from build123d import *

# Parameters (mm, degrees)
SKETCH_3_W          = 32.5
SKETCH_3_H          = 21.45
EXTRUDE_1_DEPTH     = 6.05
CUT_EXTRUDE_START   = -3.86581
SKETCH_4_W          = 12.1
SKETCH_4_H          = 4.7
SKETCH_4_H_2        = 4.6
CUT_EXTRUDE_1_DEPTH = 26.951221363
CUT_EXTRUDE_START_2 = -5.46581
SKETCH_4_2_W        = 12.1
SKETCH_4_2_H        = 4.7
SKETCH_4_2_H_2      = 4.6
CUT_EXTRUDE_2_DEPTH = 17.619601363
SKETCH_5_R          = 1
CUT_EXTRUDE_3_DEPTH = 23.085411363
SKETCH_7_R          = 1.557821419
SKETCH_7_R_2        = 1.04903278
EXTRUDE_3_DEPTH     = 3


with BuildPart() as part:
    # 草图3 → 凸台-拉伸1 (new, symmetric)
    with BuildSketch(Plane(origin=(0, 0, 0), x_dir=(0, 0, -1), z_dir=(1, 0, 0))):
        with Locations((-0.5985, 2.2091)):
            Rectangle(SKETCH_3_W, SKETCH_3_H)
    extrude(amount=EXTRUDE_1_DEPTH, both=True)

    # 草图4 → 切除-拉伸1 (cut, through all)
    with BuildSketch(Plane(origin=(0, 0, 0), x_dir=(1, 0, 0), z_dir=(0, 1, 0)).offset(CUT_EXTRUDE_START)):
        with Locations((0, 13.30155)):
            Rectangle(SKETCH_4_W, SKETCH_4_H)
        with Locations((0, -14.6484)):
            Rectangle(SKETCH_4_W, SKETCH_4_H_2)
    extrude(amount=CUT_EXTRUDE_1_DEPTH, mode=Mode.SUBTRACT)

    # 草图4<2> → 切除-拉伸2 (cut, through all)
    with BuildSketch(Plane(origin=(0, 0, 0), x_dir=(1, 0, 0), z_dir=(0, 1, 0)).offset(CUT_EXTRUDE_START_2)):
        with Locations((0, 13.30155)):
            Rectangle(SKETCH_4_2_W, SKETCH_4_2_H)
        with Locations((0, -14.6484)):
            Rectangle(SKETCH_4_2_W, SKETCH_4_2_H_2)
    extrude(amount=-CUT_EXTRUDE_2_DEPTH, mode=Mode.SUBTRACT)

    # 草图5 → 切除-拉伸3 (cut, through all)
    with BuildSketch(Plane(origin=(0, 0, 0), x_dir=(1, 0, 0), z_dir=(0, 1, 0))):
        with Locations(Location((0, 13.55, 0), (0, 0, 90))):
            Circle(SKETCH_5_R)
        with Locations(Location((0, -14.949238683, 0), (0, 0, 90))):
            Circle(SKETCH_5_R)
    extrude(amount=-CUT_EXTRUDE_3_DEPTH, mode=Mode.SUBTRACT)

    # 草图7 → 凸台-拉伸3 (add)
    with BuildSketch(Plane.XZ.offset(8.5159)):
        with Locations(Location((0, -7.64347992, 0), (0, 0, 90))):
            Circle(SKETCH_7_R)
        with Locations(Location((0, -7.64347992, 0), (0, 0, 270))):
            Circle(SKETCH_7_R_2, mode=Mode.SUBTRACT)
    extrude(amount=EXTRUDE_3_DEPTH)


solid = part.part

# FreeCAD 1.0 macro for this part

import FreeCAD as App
import Part
import Sketcher
from FreeCAD import Vector
Q = App.Units.Quantity

doc = App.newDocument("Part")
params = doc.addObject("Spreadsheet::Sheet", "Params")
for row, (alias, value) in enumerate([
    ("sketch1_height", "32.5 mm"),
    ("sketch1_width", "21.45 mm"),
    ("pad1_length", "12.1 mm"),
    ("sketch2_width", "12.1 mm"),
    ("sketch2_height", "4.7 mm"),
    ("sketch2_height2", "4.6 mm"),
    ("sketch3_width", "12.1 mm"),
    ("sketch3_height", "4.7 mm"),
    ("sketch3_height2", "4.6 mm"),
    ("sketch4_diameter", "2 mm"),
    ("pad2_length", "3 mm"),
], start=1):
    params.set(f"A{row}", alias)
    params.set(f"B{row}", "=" + value)
    params.setAlias(f"B{row}", alias)

body = doc.addObject("PartDesign::Body", "Body")

# Sketch on YZ plane
sketch1 = body.newObject("Sketcher::SketchObject", "Sketch")
sketch1.AttachmentSupport = (doc.getObject("YZ_Plane"), [""])
sketch1.MapMode = "FlatFace"
sketch1.addGeometry(Part.LineSegment(Vector(12.9341, 16.8485, 0), Vector(-8.5159, 16.8485, 0)), False)
sketch1.addGeometry(Part.LineSegment(Vector(-8.5159, 16.8485, 0), Vector(-8.5159, -15.6515, 0)), False)
sketch1.addGeometry(Part.LineSegment(Vector(-8.5159, -15.6515, 0), Vector(12.9341, -15.6515, 0)), False)
sketch1.addGeometry(Part.LineSegment(Vector(12.9341, -15.6515, 0), Vector(12.9341, 16.8485, 0)), False)
sketch1.addConstraint(Sketcher.Constraint("Coincident", 0, 2, 1, 1))
sketch1.addConstraint(Sketcher.Constraint("Coincident", 1, 2, 2, 1))
sketch1.addConstraint(Sketcher.Constraint("Coincident", 2, 2, 3, 1))
sketch1.addConstraint(Sketcher.Constraint("Coincident", 3, 2, 0, 1))
sketch1.addConstraint(Sketcher.Constraint("Horizontal", 0))
sketch1.addConstraint(Sketcher.Constraint("Vertical", 1))
sketch1.addConstraint(Sketcher.Constraint("Horizontal", 2))
sketch1.addConstraint(Sketcher.Constraint("Vertical", 3))
sketch1.addConstraint(Sketcher.Constraint("DistanceY", 1, 2, 1, 1, Q("32.5 mm")))
sketch1.addConstraint(Sketcher.Constraint("DistanceX", 0, 2, 0, 1, Q("21.45 mm")))
sketch1.addConstraint(Sketcher.Constraint("DistanceX", 0, 2, -1, 1, Q("8.5159 mm")))
sketch1.addConstraint(Sketcher.Constraint("DistanceY", -1, 1, 0, 2, Q("16.8485 mm")))
sketch1.setExpression("Constraints[8]", "Params.sketch1_height")
sketch1.setExpression("Constraints[9]", "Params.sketch1_width")
pad1 = body.newObject("PartDesign::Pad", "Pad")
pad1.Profile = sketch1
pad1.setExpression("Length", "Params.pad1_length")
pad1.Midplane = True

# Sketch on XZ plane
sketch2 = body.newObject("Sketcher::SketchObject", "Sketch001")
sketch2.AttachmentSupport = (doc.getObject("XZ_Plane"), [""])
sketch2.MapMode = "FlatFace"
sketch2.AttachmentOffset = App.Placement(Vector(0, 0, 3.86581), App.Rotation())
sketch2.addGeometry(Part.LineSegment(Vector(-6.05, -15.65155, 0), Vector(-6.05, -10.95155, 0)), False)
sketch2.addGeometry(Part.LineSegment(Vector(-6.05, -10.95155, 0), Vector(6.05, -10.95155, 0)), False)
sketch2.addGeometry(Part.LineSegment(Vector(6.05, -10.95155, 0), Vector(6.05, -15.65155, 0)), False)
sketch2.addGeometry(Part.LineSegment(Vector(6.05, -15.65155, 0), Vector(-6.05, -15.65155, 0)), False)
sketch2.addGeometry(Part.LineSegment(Vector(-6.05, 12.3484, 0), Vector(-6.05, 16.9484, 0)), False)
sketch2.addGeometry(Part.LineSegment(Vector(-6.05, 16.9484, 0), Vector(6.05, 16.9484, 0)), False)
sketch2.addGeometry(Part.LineSegment(Vector(6.05, 16.9484, 0), Vector(6.05, 12.3484, 0)), False)
sketch2.addGeometry(Part.LineSegment(Vector(6.05, 12.3484, 0), Vector(-6.05, 12.3484, 0)), False)
sketch2.addConstraint(Sketcher.Constraint("Coincident", 0, 2, 1, 1))
sketch2.addConstraint(Sketcher.Constraint("Coincident", 1, 2, 2, 1))
sketch2.addConstraint(Sketcher.Constraint("Coincident", 2, 2, 3, 1))
sketch2.addConstraint(Sketcher.Constraint("Coincident", 3, 2, 0, 1))
sketch2.addConstraint(Sketcher.Constraint("Coincident", 4, 2, 5, 1))
sketch2.addConstraint(Sketcher.Constraint("Coincident", 5, 2, 6, 1))
sketch2.addConstraint(Sketcher.Constraint("Coincident", 6, 2, 7, 1))
sketch2.addConstraint(Sketcher.Constraint("Coincident", 7, 2, 4, 1))
sketch2.addConstraint(Sketcher.Constraint("Vertical", 0))
sketch2.addConstraint(Sketcher.Constraint("Horizontal", 1))
sketch2.addConstraint(Sketcher.Constraint("Vertical", 2))
sketch2.addConstraint(Sketcher.Constraint("Horizontal", 3))
sketch2.addConstraint(Sketcher.Constraint("Vertical", 4))
sketch2.addConstraint(Sketcher.Constraint("Horizontal", 5))
sketch2.addConstraint(Sketcher.Constraint("Vertical", 6))
sketch2.addConstraint(Sketcher.Constraint("Horizontal", 7))
sketch2.addConstraint(Sketcher.Constraint("Vertical", 3, 2, 4, 2))
sketch2.addConstraint(Sketcher.Constraint("Vertical", 2, 2, 5, 2))
sketch2.addConstraint(Sketcher.Constraint("DistanceX", 1, 1, 1, 2, Q("12.1 mm")))
sketch2.addConstraint(Sketcher.Constraint("DistanceY", 0, 1, 0, 2, Q("4.7 mm")))
sketch2.addConstraint(Sketcher.Constraint("DistanceY", 4, 1, 4, 2, Q("4.6 mm")))
sketch2.addConstraint(Sketcher.Constraint("DistanceX", 0, 2, -1, 1, Q("6.05 mm")))
sketch2.addConstraint(Sketcher.Constraint("DistanceY", -1, 1, 4, 2, Q("16.9484 mm")))
sketch2.addConstraint(Sketcher.Constraint("DistanceY", 0, 2, -1, 1, Q("10.95155 mm")))
sketch2.setExpression("Constraints[18]", "Params.sketch2_width")
sketch2.setExpression("Constraints[19]", "Params.sketch2_height")
sketch2.setExpression("Constraints[20]", "Params.sketch2_height2")
pocket1 = body.newObject("PartDesign::Pocket", "Pocket")
pocket1.Profile = sketch2
pocket1.Type = "ThroughAll"

# Sketch on XZ plane
sketch3 = body.newObject("Sketcher::SketchObject", "Sketch002")
sketch3.AttachmentSupport = (doc.getObject("XZ_Plane"), [""])
sketch3.MapMode = "FlatFace"
sketch3.AttachmentOffset = App.Placement(Vector(0, 0, 5.46581), App.Rotation())
sketch3.addGeometry(Part.LineSegment(Vector(-6.05, -15.65155, 0), Vector(-6.05, -10.95155, 0)), False)
sketch3.addGeometry(Part.LineSegment(Vector(-6.05, -10.95155, 0), Vector(6.05, -10.95155, 0)), False)
sketch3.addGeometry(Part.LineSegment(Vector(6.05, -10.95155, 0), Vector(6.05, -15.65155, 0)), False)
sketch3.addGeometry(Part.LineSegment(Vector(6.05, -15.65155, 0), Vector(-6.05, -15.65155, 0)), False)
sketch3.addGeometry(Part.LineSegment(Vector(-6.05, 12.3484, 0), Vector(-6.05, 16.9484, 0)), False)
sketch3.addGeometry(Part.LineSegment(Vector(-6.05, 16.9484, 0), Vector(6.05, 16.9484, 0)), False)
sketch3.addGeometry(Part.LineSegment(Vector(6.05, 16.9484, 0), Vector(6.05, 12.3484, 0)), False)
sketch3.addGeometry(Part.LineSegment(Vector(6.05, 12.3484, 0), Vector(-6.05, 12.3484, 0)), False)
sketch3.addConstraint(Sketcher.Constraint("Coincident", 0, 2, 1, 1))
sketch3.addConstraint(Sketcher.Constraint("Coincident", 1, 2, 2, 1))
sketch3.addConstraint(Sketcher.Constraint("Coincident", 2, 2, 3, 1))
sketch3.addConstraint(Sketcher.Constraint("Coincident", 3, 2, 0, 1))
sketch3.addConstraint(Sketcher.Constraint("Coincident", 4, 2, 5, 1))
sketch3.addConstraint(Sketcher.Constraint("Coincident", 5, 2, 6, 1))
sketch3.addConstraint(Sketcher.Constraint("Coincident", 6, 2, 7, 1))
sketch3.addConstraint(Sketcher.Constraint("Coincident", 7, 2, 4, 1))
sketch3.addConstraint(Sketcher.Constraint("Vertical", 0))
sketch3.addConstraint(Sketcher.Constraint("Horizontal", 1))
sketch3.addConstraint(Sketcher.Constraint("Vertical", 2))
sketch3.addConstraint(Sketcher.Constraint("Horizontal", 3))
sketch3.addConstraint(Sketcher.Constraint("Vertical", 4))
sketch3.addConstraint(Sketcher.Constraint("Horizontal", 5))
sketch3.addConstraint(Sketcher.Constraint("Vertical", 6))
sketch3.addConstraint(Sketcher.Constraint("Horizontal", 7))
sketch3.addConstraint(Sketcher.Constraint("Vertical", 3, 2, 4, 2))
sketch3.addConstraint(Sketcher.Constraint("Vertical", 2, 2, 5, 2))
sketch3.addConstraint(Sketcher.Constraint("DistanceX", 1, 1, 1, 2, Q("12.1 mm")))
sketch3.addConstraint(Sketcher.Constraint("DistanceY", 0, 1, 0, 2, Q("4.7 mm")))
sketch3.addConstraint(Sketcher.Constraint("DistanceY", 4, 1, 4, 2, Q("4.6 mm")))
sketch3.addConstraint(Sketcher.Constraint("DistanceX", 0, 2, -1, 1, Q("6.05 mm")))
sketch3.addConstraint(Sketcher.Constraint("DistanceY", -1, 1, 4, 2, Q("16.9484 mm")))
sketch3.addConstraint(Sketcher.Constraint("DistanceY", 0, 2, -1, 1, Q("10.95155 mm")))
sketch3.setExpression("Constraints[18]", "Params.sketch3_width")
sketch3.setExpression("Constraints[19]", "Params.sketch3_height")
sketch3.setExpression("Constraints[20]", "Params.sketch3_height2")
pocket2 = body.newObject("PartDesign::Pocket", "Pocket001")
pocket2.Profile = sketch3
pocket2.Type = "ThroughAll"
pocket2.Reversed = True

# Sketch on XZ plane
sketch4 = body.newObject("Sketcher::SketchObject", "Sketch003")
sketch4.AttachmentSupport = (doc.getObject("XZ_Plane"), [""])
sketch4.MapMode = "FlatFace"
sketch4.addGeometry(Part.Circle(Vector(0, -13.55, 0), Vector(0, 0, 1), 1), False)
sketch4.addGeometry(Part.Circle(Vector(0, 14.949239, 0), Vector(0, 0, 1), 1), False)
sketch4.addConstraint(Sketcher.Constraint("Equal", 0, 1))
sketch4.addConstraint(Sketcher.Constraint("PointOnObject", 0, 3, -2))
sketch4.addConstraint(Sketcher.Constraint("PointOnObject", 1, 3, -2))
sketch4.addConstraint(Sketcher.Constraint("Diameter", 0, Q("2 mm")))
sketch4.addConstraint(Sketcher.Constraint("DistanceY", 0, 3, -1, 1, Q("13.55 mm")))
sketch4.addConstraint(Sketcher.Constraint("DistanceY", -1, 1, 1, 3, Q("14.949239 mm")))
sketch4.setExpression("Constraints[3]", "Params.sketch4_diameter")
pocket3 = body.newObject("PartDesign::Pocket", "Pocket002")
pocket3.Profile = sketch4
pocket3.Type = "ThroughAll"
pocket3.Reversed = True

# Sketch on XZ plane
sketch5 = body.newObject("Sketcher::SketchObject", "Sketch004")
sketch5.AttachmentSupport = (doc.getObject("XZ_Plane"), [""])
sketch5.MapMode = "FlatFace"
sketch5.AttachmentOffset = App.Placement(Vector(0, 0, 8.5159), App.Rotation())
sketch5.addGeometry(Part.Circle(Vector(0, -7.64348, 0), Vector(0, 0, 1), 1.557821), False)
sketch5.addGeometry(Part.Circle(Vector(0, -7.64348, 0), Vector(0, 0, 1), 1.049033), False)
sketch5.addConstraint(Sketcher.Constraint("Coincident", 1, 3, 0, 3))
sketch5.addConstraint(Sketcher.Constraint("PointOnObject", 0, 3, -2))
sketch5.addConstraint(Sketcher.Constraint("Diameter", 0, Q("3.115643 mm")))
sketch5.addConstraint(Sketcher.Constraint("Diameter", 1, Q("2.098066 mm")))
sketch5.addConstraint(Sketcher.Constraint("DistanceY", 0, 3, -1, 1, Q("7.64348 mm")))
pad2 = body.newObject("PartDesign::Pad", "Pad001")
pad2.Profile = sketch5
pad2.setExpression("Length", "Params.pad2_length")

doc.recompute()
